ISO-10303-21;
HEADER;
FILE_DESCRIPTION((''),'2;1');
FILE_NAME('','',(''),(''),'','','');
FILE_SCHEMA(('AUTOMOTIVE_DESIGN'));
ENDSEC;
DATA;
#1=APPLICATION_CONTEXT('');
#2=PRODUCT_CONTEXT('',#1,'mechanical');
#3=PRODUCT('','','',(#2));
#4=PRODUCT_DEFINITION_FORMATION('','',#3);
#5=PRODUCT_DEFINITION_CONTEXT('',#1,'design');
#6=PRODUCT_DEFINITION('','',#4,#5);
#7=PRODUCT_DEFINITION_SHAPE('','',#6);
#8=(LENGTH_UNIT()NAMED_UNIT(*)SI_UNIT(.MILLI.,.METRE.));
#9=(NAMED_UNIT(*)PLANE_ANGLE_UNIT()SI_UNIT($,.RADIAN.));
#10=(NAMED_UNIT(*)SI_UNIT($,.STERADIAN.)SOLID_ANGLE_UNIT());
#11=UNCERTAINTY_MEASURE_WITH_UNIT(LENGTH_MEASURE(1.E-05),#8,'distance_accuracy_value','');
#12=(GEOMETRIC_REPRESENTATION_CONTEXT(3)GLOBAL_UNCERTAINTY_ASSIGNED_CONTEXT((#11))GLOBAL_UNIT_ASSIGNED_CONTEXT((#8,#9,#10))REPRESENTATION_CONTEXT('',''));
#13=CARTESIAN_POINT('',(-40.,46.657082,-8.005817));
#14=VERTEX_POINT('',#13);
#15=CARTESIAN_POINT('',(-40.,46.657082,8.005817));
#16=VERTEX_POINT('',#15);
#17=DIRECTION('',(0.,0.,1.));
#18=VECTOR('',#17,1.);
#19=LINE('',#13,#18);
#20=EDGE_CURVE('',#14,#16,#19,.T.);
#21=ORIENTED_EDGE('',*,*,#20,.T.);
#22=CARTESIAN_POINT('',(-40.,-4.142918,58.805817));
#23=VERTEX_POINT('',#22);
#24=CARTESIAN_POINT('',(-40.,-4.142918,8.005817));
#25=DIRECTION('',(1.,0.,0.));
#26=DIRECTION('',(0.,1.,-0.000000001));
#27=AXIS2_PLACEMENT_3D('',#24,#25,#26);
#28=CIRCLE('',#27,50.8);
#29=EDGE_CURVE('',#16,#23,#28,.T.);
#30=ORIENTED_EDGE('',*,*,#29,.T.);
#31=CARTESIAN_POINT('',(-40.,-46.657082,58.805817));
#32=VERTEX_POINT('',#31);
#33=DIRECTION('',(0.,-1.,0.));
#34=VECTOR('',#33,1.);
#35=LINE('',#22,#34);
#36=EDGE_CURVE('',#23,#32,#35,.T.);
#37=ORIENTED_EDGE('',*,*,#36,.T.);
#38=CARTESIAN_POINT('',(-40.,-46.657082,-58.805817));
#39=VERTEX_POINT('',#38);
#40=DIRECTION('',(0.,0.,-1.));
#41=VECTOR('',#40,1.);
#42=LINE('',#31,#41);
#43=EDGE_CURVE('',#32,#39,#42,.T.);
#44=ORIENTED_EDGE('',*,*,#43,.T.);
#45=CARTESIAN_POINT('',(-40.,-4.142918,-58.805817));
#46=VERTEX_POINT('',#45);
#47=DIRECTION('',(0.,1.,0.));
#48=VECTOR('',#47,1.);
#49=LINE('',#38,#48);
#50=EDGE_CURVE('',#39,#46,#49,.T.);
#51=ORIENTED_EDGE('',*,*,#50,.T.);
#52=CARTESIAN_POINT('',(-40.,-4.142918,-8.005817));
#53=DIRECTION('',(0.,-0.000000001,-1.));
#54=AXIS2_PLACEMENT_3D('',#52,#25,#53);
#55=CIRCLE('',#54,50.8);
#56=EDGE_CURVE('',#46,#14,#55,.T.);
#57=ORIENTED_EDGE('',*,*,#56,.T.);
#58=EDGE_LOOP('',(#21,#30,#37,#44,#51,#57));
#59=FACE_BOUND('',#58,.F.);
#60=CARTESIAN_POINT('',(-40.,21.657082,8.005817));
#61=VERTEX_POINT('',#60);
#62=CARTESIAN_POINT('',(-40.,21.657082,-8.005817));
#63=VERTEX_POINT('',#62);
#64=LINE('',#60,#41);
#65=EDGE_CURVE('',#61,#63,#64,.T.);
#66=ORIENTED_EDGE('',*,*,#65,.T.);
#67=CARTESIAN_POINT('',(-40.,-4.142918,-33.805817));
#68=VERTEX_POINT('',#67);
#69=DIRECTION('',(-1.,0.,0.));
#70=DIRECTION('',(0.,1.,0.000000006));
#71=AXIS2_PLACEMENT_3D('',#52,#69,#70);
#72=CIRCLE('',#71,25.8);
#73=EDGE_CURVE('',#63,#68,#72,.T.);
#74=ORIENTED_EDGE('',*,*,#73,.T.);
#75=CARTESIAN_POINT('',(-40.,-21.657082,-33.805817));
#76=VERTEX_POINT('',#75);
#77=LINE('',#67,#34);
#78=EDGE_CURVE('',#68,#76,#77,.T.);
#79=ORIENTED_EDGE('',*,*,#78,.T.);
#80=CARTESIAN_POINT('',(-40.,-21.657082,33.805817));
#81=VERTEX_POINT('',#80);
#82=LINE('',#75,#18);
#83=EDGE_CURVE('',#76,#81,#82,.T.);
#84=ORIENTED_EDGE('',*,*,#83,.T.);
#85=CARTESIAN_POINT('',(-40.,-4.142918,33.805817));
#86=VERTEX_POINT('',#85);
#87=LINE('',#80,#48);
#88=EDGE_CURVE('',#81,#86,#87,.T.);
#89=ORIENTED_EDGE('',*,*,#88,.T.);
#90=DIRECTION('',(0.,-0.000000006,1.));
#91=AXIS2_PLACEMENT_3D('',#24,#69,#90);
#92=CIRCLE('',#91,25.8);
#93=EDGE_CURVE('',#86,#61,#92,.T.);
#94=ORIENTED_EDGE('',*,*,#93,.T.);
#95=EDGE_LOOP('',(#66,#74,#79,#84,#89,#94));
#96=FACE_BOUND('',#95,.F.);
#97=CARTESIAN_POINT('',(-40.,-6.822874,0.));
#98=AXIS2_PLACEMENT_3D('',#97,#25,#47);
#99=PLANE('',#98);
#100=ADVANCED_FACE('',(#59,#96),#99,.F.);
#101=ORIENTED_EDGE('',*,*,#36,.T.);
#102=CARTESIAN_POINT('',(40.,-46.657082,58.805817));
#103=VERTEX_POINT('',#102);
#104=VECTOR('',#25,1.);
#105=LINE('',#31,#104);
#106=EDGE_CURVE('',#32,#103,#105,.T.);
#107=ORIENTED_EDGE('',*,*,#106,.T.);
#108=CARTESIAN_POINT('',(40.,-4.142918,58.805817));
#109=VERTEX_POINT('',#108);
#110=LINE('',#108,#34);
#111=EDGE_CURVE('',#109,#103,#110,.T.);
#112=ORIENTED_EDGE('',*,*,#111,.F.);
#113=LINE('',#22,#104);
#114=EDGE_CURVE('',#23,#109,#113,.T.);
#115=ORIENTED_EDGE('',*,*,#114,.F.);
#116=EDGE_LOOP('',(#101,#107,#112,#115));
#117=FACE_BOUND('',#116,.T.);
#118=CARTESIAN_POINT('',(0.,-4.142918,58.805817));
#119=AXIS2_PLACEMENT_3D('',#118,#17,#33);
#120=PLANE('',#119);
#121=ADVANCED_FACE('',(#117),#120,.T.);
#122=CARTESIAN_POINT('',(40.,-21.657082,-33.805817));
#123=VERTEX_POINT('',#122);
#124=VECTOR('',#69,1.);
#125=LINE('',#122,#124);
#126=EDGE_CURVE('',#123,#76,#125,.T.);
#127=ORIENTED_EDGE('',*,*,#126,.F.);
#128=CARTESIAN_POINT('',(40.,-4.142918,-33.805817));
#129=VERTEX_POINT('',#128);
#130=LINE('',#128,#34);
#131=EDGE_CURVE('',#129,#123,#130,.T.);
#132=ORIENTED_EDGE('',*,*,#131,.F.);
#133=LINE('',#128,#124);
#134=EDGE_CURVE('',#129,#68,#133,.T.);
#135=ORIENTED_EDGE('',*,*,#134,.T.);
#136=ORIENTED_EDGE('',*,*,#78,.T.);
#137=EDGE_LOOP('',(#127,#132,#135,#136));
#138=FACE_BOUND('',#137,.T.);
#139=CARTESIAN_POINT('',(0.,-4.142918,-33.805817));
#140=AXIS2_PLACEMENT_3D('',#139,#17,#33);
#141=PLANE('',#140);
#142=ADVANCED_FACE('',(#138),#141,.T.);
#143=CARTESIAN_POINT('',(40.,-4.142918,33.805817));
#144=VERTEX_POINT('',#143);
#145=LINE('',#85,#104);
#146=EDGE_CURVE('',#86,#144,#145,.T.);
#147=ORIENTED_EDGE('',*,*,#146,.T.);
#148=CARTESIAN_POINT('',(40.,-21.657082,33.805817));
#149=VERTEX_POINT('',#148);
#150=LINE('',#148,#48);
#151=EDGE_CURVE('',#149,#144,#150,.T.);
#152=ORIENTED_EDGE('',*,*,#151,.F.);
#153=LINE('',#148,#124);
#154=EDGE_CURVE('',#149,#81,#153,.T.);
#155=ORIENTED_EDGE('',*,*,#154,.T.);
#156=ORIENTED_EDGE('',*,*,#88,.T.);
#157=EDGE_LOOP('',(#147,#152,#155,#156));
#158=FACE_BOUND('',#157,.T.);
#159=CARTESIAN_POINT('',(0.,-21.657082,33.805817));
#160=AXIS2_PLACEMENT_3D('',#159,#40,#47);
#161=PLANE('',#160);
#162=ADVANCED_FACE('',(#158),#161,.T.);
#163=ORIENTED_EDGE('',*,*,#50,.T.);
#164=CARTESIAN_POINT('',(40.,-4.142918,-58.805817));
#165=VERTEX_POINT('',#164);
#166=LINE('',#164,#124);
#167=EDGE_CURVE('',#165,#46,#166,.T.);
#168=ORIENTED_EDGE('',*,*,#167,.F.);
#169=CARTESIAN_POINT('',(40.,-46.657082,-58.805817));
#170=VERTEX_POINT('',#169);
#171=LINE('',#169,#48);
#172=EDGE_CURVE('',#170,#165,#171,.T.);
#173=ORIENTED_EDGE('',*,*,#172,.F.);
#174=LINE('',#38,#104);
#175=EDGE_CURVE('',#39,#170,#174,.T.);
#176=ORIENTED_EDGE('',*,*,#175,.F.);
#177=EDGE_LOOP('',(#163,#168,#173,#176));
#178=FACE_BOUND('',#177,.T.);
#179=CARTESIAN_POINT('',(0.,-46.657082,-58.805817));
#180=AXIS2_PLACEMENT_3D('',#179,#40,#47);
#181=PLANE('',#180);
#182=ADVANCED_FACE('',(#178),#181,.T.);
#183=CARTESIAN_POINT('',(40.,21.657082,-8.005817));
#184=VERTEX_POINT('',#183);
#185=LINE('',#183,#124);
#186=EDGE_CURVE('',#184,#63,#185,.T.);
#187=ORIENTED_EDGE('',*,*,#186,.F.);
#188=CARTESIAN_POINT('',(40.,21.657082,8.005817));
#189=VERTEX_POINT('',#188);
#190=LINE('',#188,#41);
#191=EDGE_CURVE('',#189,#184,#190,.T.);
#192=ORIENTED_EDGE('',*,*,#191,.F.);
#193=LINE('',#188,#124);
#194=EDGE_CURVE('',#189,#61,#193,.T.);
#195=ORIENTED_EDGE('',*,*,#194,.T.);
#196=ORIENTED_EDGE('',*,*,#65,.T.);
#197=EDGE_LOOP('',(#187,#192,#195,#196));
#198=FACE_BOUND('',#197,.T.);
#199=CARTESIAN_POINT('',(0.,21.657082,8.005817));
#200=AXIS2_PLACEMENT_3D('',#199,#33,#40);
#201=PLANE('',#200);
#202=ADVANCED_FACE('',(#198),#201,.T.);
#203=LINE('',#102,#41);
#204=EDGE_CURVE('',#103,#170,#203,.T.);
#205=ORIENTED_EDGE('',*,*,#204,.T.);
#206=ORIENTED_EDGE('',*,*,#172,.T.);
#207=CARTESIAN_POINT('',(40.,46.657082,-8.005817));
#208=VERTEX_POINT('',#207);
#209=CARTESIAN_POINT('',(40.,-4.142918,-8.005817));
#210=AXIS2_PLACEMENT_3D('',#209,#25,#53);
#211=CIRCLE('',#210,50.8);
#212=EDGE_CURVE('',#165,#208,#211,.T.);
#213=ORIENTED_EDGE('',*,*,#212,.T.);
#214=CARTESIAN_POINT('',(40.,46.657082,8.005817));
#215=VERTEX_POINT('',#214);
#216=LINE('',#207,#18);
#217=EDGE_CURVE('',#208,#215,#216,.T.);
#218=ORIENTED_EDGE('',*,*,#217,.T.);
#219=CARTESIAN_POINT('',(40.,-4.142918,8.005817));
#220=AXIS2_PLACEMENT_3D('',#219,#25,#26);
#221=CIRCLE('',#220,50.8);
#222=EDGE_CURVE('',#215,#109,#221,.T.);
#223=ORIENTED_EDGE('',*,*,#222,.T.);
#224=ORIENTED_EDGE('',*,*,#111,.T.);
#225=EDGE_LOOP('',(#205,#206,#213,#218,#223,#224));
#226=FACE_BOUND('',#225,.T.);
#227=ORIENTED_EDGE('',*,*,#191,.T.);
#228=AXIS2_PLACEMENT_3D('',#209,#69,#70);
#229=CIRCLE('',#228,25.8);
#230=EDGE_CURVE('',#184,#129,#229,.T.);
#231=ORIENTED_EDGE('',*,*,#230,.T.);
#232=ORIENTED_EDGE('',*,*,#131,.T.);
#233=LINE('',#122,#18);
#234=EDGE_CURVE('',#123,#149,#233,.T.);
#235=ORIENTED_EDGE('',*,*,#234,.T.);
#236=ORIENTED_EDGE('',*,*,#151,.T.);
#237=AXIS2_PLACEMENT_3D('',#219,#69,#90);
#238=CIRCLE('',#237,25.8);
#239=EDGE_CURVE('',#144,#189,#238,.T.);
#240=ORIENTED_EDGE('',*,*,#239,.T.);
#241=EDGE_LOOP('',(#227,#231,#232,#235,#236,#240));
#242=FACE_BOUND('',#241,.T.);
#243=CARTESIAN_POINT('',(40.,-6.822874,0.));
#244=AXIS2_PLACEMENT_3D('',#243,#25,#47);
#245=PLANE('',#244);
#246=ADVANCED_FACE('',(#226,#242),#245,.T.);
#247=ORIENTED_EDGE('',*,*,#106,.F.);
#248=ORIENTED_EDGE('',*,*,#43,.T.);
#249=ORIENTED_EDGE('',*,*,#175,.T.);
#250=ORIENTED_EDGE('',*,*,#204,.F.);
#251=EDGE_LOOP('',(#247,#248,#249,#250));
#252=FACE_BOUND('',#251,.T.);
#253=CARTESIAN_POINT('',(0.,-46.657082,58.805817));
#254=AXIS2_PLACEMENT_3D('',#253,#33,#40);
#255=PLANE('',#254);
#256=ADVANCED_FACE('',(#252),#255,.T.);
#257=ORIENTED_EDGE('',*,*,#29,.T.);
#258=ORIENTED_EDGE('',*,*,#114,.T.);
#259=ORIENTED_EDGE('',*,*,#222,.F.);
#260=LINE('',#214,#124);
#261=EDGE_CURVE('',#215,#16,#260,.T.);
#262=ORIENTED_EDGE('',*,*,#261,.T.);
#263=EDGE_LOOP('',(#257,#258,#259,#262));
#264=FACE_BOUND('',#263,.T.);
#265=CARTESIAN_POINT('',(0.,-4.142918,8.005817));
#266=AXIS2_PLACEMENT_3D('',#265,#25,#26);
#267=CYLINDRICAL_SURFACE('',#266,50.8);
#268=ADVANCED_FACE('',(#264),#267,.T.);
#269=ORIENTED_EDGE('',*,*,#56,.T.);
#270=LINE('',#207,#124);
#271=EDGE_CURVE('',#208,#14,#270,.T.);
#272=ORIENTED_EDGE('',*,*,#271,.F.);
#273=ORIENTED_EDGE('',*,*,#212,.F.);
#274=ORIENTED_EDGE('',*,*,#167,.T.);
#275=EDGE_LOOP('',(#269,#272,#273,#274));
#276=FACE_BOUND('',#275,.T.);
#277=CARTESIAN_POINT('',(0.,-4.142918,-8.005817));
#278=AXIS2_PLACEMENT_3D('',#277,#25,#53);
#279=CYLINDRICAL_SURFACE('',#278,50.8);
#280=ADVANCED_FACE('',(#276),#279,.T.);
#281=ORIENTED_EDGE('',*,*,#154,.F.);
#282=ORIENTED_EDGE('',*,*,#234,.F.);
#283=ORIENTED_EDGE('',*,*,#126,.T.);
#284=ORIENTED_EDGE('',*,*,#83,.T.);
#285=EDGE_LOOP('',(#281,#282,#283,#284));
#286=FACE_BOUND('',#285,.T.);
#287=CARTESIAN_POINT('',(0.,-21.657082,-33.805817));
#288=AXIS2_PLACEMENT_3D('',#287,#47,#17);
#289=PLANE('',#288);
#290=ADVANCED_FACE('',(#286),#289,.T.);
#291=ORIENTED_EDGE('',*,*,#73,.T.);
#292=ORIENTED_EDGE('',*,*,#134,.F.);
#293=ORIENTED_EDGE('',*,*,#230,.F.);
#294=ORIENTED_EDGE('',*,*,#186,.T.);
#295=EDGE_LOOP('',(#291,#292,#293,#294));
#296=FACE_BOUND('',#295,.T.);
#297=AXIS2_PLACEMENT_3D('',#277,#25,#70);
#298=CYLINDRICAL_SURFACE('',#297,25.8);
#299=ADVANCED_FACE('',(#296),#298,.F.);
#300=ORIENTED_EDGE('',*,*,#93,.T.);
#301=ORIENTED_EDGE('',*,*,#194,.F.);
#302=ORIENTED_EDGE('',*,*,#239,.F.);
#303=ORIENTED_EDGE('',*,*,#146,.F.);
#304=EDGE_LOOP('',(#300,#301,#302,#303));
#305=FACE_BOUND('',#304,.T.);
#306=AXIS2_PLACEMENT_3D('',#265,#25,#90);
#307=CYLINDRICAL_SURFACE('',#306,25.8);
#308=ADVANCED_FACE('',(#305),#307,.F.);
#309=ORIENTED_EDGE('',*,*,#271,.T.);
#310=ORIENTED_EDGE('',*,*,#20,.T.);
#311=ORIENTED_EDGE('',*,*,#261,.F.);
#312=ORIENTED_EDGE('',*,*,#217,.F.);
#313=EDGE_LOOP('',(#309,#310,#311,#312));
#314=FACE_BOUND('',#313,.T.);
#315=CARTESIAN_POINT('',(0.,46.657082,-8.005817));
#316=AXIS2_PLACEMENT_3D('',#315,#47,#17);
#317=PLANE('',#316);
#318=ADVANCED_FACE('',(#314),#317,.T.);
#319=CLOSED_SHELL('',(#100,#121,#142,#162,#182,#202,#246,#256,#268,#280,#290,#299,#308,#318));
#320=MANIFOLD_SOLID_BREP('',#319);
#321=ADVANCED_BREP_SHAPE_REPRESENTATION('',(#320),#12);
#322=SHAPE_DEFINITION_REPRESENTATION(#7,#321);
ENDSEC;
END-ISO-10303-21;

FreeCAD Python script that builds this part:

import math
import FreeCAD as App
import Part
import Sketcher

V = App.Vector

doc = App.newDocument("Part")
body = doc.addObject("PartDesign::Body", "Body")

sketch1 = body.newObject("Sketcher::SketchObject", "Sketch")
sketch1.AttachmentSupport = (doc.getObject("YZ_Plane"), [""])
sketch1.MapMode = "FlatFace"
sketch1.addGeometry([
    Part.ArcOfCircle(Part.Circle(V(-4.142918, 8.005817, 0), V(0, 0, 1), 50.8), math.radians(0), math.radians(90)),
    Part.LineSegment(V(-4.142918, 58.805817, 0), V(-46.657082, 58.805817, 0)),
    Part.LineSegment(V(-46.657082, 58.805817, 0), V(-46.657082, -58.805817, 0)),
    Part.LineSegment(V(-46.657082, -58.805817, 0), V(-4.142918, -58.805817, 0)),
    Part.ArcOfCircle(Part.Circle(V(-4.142918, -8.005817, 0), V(0, 0, 1), 50.8), math.radians(-90), math.radians(0)),
    Part.LineSegment(V(46.657082, -8.005817, 0), V(46.657082, 8.005817, 0)),
    Part.LineSegment(V(-21.657082, 33.805817, 0), V(-4.142918, 33.805817, 0)),
    Part.ArcOfCircle(Part.Circle(V(-4.142918, 8.005817, 0), V(0, 0, 1), 25.8), math.radians(0), math.radians(90)),
    Part.LineSegment(V(21.657082, 8.005817, 0), V(21.657082, -8.005817, 0)),
    Part.ArcOfCircle(Part.Circle(V(-4.142918, -8.005817, 0), V(0, 0, 1), 25.8), math.radians(-90), math.radians(0)),
    Part.LineSegment(V(-4.142918, -33.805817, 0), V(-21.657082, -33.805817, 0)),
    Part.LineSegment(V(-21.657082, -33.805817, 0), V(-21.657082, 33.805817, 0)),
], False)
sketch1.addConstraint([
    Sketcher.Constraint("Tangent", 0, 2, 1, 1),
    Sketcher.Constraint("Coincident", 1, 2, 2, 1),
    Sketcher.Constraint("Coincident", 2, 2, 3, 1),
    Sketcher.Constraint("Tangent", 3, 2, 4, 1),
    Sketcher.Constraint("Tangent", 4, 2, 5, 1),
    Sketcher.Constraint("Tangent", 5, 2, 0, 1),
    Sketcher.Constraint("Tangent", 6, 2, 7, 2),
    Sketcher.Constraint("Tangent", 7, 1, 8, 1),
    Sketcher.Constraint("Tangent", 8, 2, 9, 2),
    Sketcher.Constraint("Tangent", 9, 1, 10, 1),
    Sketcher.Constraint("Coincident", 10, 2, 11, 1),
    Sketcher.Constraint("Coincident", 11, 2, 6, 1),
    Sketcher.Constraint("Horizontal", 1),
    Sketcher.Constraint("Vertical", 2),
    Sketcher.Constraint("Horizontal", 3),
    Sketcher.Constraint("Vertical", 5),
    Sketcher.Constraint("Horizontal", 6),
    Sketcher.Constraint("Vertical", 8),
    Sketcher.Constraint("Horizontal", 10),
    Sketcher.Constraint("Vertical", 11),
    Sketcher.Constraint("Coincident", 7, 3, 0, 3),
    Sketcher.Constraint("Coincident", 9, 3, 4, 3),
    Sketcher.Constraint("Equal", 0, 4),
    Sketcher.Constraint("Radius", 0, 50.8),
    Sketcher.Constraint("Radius", 7, 25.8),
    Sketcher.Constraint("DistanceX", 2, 2, 10, 2, 25.0),
    Sketcher.Constraint("DistanceX", 1, 2, 1, 1, 42.514164),
    Sketcher.Constraint("DistanceY", 2, 2, 2, 1, 117.611634),
    Sketcher.Constraint("DistanceX", -1, 1, 7, 1, 21.657082),
    Sketcher.Constraint("DistanceY", -1, 1, 0, 3, 8.005817),
])
pad1 = body.newObject("PartDesign::Pad", "Pad")
pad1.Profile = sketch1
pad1.Length = 80
pad1.Midplane = True

doc.recompute()
